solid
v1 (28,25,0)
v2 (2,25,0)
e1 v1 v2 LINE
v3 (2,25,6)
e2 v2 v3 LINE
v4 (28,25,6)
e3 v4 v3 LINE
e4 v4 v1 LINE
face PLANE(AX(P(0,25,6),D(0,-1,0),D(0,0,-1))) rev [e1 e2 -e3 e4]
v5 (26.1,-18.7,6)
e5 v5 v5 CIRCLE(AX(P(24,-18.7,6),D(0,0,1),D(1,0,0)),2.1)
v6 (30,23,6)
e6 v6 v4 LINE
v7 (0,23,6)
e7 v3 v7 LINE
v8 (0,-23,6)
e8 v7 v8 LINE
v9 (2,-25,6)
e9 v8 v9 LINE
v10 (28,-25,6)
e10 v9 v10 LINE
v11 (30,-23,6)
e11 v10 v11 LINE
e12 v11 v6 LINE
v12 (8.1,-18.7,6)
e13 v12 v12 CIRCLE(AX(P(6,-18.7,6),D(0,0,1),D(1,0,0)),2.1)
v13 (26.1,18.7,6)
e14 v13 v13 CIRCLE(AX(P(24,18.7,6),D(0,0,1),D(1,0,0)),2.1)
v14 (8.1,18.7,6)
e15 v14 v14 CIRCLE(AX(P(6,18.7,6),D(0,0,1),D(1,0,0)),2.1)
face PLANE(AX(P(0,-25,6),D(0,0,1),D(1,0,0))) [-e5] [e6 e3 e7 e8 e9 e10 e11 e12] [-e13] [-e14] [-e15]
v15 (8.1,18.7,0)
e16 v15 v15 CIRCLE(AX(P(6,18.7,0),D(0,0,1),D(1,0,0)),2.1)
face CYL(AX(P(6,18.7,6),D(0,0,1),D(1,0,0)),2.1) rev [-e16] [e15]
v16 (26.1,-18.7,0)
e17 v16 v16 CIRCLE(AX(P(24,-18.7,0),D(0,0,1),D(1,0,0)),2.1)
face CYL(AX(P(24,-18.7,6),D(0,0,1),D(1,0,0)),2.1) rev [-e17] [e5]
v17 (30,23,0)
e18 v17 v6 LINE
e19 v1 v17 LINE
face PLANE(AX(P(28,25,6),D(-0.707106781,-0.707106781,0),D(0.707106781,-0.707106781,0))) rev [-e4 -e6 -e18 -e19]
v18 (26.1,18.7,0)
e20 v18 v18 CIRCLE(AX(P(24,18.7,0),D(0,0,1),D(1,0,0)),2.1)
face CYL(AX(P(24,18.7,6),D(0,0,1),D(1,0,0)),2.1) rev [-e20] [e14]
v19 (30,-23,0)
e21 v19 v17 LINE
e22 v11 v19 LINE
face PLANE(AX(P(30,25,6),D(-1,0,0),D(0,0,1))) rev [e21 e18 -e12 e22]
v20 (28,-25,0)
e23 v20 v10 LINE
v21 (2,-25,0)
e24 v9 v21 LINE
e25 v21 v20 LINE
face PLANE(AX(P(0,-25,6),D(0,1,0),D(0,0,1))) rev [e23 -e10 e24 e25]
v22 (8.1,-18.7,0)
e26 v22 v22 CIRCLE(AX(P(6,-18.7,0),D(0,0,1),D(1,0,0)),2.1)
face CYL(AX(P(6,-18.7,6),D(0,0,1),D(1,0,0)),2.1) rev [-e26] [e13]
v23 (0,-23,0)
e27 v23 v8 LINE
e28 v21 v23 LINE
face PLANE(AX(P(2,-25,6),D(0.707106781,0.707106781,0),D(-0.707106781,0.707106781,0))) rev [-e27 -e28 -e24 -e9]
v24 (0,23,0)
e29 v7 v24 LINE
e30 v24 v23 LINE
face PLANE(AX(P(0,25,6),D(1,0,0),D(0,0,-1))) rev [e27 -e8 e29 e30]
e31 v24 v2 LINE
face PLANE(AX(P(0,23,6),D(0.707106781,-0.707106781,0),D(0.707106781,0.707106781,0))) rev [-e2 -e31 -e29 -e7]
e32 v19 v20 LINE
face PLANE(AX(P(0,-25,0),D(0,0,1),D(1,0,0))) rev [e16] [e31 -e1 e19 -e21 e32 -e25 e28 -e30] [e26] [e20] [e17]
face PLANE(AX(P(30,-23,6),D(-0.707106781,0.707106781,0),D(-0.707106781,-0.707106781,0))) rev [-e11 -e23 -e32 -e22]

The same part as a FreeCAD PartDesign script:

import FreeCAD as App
import Part
import Sketcher
from FreeCAD import Vector
Q = App.Units.Quantity


def edges_at(feature, points):
    """Names of the edges that pass closest to the given points."""
    edges = feature.Shape.Edges
    near = lambda p: min(range(len(edges)), key=lambda i: edges[i].distToShape(Part.Vertex(*p))[0])
    return sorted({f"Edge{near(p) + 1}" for p in points})


def add_polygon(sketch, points):
    """Adds a closed chain of lines whose ends are joined by coincident constraints."""
    first, n = sketch.GeometryCount, len(points)
    for a, b in zip(points, points[1:] + points[:1]):
        sketch.addGeometry(Part.LineSegment(App.Vector(*a, 0), App.Vector(*b, 0)), False)
    for i in range(n):
        sketch.addConstraint(Sketcher.Constraint("Coincident", first + i, 2, first + (i + 1) % n, 1))

doc = App.newDocument("Part")
body = doc.addObject("PartDesign::Body", "Body")

sketch1 = doc.addObject("Sketcher::SketchObject", "Sketch")
body.addObject(sketch1)
sketch1.AttachmentSupport = (doc.XY_Plane, [""])
sketch1.MapMode = "FlatFace"
add_polygon(sketch1, [(0, 25), (0, -25), (30, -25), (30, 25)])
sketch1.addConstraint([
    Sketcher.Constraint("Vertical", 0),
    Sketcher.Constraint("Horizontal", 1),
    Sketcher.Constraint("Vertical", 2),
    Sketcher.Constraint("Horizontal", 3),
    Sketcher.Constraint("Symmetric", 0, 2, 3, 2, -1, 1),
    Sketcher.Constraint("DistanceX", 1, 1, 1, 2, Q("30 mm")),
    Sketcher.Constraint("DistanceY", 0, 2, 0, 1, Q("50 mm")),
])
pad1 = doc.addObject("PartDesign::Pad", "Pad")
body.addObject(pad1)
pad1.Profile = sketch1
pad1.Length = 6

sketch2 = doc.addObject("Sketcher::SketchObject", "Sketch001")
body.addObject(sketch2)
sketch2.AttachmentSupport = (doc.XY_Plane, [""])
sketch2.MapMode = "FlatFace"
sketch2.AttachmentOffset = App.Placement(Vector(0, 0, 6), App.Rotation())
sketch2.addGeometry([
    Part.Circle(Vector(6, 18.7, 0), Vector(0, 0, 1), 2.1),
    Part.Circle(Vector(6, -18.7, 0), Vector(0, 0, 1), 2.1),
    Part.Circle(Vector(24, -18.7, 0), Vector(0, 0, 1), 2.1),
    Part.Circle(Vector(24, 18.7, 0), Vector(0, 0, 1), 2.1),
], False)
sketch2.addConstraint([
    Sketcher.Constraint("Equal", 0, 1),
    Sketcher.Constraint("Equal", 1, 2),
    Sketcher.Constraint("Equal", 2, 3),
    Sketcher.Constraint("Symmetric", 0, 3, 1, 3, -1),
    Sketcher.Constraint("Symmetric", 2, 3, 3, 3, -1),
    Sketcher.Constraint("Horizontal", 1, 3, 2, 3),
    Sketcher.Constraint("Diameter", 0, Q("4.2 mm")),
    Sketcher.Constraint("DistanceX", -1, 1, 0, 3, Q("6 mm")),
    Sketcher.Constraint("DistanceX", -1, 1, 2, 3, Q("24 mm")),
    Sketcher.Constraint("DistanceY", -1, 1, 0, 3, Q("18.7 mm")),
])
doc.recompute()
hole = doc.addObject("PartDesign::Hole", "Hole")
body.addObject(hole)
hole.Profile = sketch2
hole.ThreadType = "None"
hole.Diameter = 4.2
hole.DepthType = "ThroughAll"
doc.recompute()

chamfer = doc.addObject("PartDesign::Chamfer", "Chamfer")
body.addObject(chamfer)
chamfer.Base = (hole, edges_at(hole, [
    (0, 25, 3),
    (30, 25, 3),
    (30, -25, 3),
    (0, -25, 3),
]))
chamfer.Size = 2

doc.recompute()
